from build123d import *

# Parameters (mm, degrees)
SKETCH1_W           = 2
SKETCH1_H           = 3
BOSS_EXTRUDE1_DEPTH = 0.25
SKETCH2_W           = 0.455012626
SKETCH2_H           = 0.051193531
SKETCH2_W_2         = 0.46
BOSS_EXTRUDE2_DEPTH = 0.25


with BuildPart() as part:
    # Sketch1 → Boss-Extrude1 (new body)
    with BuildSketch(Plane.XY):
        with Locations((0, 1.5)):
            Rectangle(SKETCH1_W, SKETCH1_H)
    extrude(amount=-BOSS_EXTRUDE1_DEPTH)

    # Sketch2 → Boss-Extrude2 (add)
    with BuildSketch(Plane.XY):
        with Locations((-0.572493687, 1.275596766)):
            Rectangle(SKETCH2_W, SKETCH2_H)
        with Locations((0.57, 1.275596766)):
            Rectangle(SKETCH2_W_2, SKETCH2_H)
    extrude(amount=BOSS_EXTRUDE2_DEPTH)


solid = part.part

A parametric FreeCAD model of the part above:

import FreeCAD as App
import Part
import Sketcher
from FreeCAD import Vector
Q = App.Units.Quantity


def add_polygon(sketch, points):
    """Adds a closed chain of lines whose ends are joined by coincident constraints."""
    first, n = sketch.GeometryCount, len(points)
    for a, b in zip(points, points[1:] + points[:1]):
        sketch.addGeometry(Part.LineSegment(App.Vector(*a, 0), App.Vector(*b, 0)), False)
    for i in range(n):
        sketch.addConstraint(Sketcher.Constraint("Coincident", first + i, 2, first + (i + 1) % n, 1))

doc = App.newDocument("Part")
body = doc.addObject("PartDesign::Body", "Body")

# Sketch on XY plane
sketch1 = body.newObject("Sketcher::SketchObject", "Sketch")
sketch1.AttachmentSupport = (doc.getObject("XY_Plane"), [""])
sketch1.MapMode = "FlatFace"
add_polygon(sketch1, [(-1, 3), (-1, 0), (1, 0), (1, 3)])  # lines 0-3
sketch1.addConstraint([
    Sketcher.Constraint("Vertical", 0),
    Sketcher.Constraint("Horizontal", 1),
    Sketcher.Constraint("Vertical", 2),
    Sketcher.Constraint("Horizontal", 3),
    Sketcher.Constraint("Symmetric", 0, 2, 1, 2, -1, 1),
    Sketcher.Constraint("DistanceX", 1, 1, 1, 2, Q("2 mm")),
    Sketcher.Constraint("DistanceY", 0, 2, 0, 1, Q("3 mm")),
])
pad1 = body.newObject("PartDesign::Pad", "Pad")
pad1.Profile = sketch1
pad1.Length = 0.25
pad1.Reversed = True

# Sketch on XY plane
sketch2 = body.newObject("Sketcher::SketchObject", "Sketch001")
sketch2.AttachmentSupport = (doc.getObject("XY_Plane"), [""])
sketch2.MapMode = "FlatFace"
add_polygon(sketch2, [(-0.8, 1.301194), (-0.8, 1.25), (-0.344987, 1.25), (-0.344987, 1.301194)])  # lines 0-3
add_polygon(sketch2, [(0.34, 1.301194), (0.34, 1.25), (0.8, 1.25), (0.8, 1.301194)])  # lines 4-7
sketch2.addConstraint([
    Sketcher.Constraint("Vertical", 0),
    Sketcher.Constraint("Horizontal", 1),
    Sketcher.Constraint("Vertical", 2),
    Sketcher.Constraint("Horizontal", 3),
    Sketcher.Constraint("Vertical", 4),
    Sketcher.Constraint("Horizontal", 5),
    Sketcher.Constraint("Vertical", 6),
    Sketcher.Constraint("Horizontal", 7),
    Sketcher.Constraint("Symmetric", 0, 2, 5, 2, -2),
    Sketcher.Constraint("Horizontal", 3, 2, 6, 2),
    Sketcher.Constraint("DistanceX", 5, 1, 5, 2, Q("0.46 mm")),
    Sketcher.Constraint("DistanceX", 0, 2, -1, 1, Q("0.8 mm")),
    Sketcher.Constraint("DistanceY", -1, 1, 0, 2, Q("1.25 mm")),
    Sketcher.Constraint("DistanceX", 1, 1, 1, 2, Q("0.455013 mm")),
    Sketcher.Constraint("DistanceY", 0, 2, 0, 1, Q("0.051194 mm")),
])
pad2 = body.newObject("PartDesign::Pad", "Pad001")
pad2.Profile = sketch2
pad2.Length = 0.25

doc.recompute()
